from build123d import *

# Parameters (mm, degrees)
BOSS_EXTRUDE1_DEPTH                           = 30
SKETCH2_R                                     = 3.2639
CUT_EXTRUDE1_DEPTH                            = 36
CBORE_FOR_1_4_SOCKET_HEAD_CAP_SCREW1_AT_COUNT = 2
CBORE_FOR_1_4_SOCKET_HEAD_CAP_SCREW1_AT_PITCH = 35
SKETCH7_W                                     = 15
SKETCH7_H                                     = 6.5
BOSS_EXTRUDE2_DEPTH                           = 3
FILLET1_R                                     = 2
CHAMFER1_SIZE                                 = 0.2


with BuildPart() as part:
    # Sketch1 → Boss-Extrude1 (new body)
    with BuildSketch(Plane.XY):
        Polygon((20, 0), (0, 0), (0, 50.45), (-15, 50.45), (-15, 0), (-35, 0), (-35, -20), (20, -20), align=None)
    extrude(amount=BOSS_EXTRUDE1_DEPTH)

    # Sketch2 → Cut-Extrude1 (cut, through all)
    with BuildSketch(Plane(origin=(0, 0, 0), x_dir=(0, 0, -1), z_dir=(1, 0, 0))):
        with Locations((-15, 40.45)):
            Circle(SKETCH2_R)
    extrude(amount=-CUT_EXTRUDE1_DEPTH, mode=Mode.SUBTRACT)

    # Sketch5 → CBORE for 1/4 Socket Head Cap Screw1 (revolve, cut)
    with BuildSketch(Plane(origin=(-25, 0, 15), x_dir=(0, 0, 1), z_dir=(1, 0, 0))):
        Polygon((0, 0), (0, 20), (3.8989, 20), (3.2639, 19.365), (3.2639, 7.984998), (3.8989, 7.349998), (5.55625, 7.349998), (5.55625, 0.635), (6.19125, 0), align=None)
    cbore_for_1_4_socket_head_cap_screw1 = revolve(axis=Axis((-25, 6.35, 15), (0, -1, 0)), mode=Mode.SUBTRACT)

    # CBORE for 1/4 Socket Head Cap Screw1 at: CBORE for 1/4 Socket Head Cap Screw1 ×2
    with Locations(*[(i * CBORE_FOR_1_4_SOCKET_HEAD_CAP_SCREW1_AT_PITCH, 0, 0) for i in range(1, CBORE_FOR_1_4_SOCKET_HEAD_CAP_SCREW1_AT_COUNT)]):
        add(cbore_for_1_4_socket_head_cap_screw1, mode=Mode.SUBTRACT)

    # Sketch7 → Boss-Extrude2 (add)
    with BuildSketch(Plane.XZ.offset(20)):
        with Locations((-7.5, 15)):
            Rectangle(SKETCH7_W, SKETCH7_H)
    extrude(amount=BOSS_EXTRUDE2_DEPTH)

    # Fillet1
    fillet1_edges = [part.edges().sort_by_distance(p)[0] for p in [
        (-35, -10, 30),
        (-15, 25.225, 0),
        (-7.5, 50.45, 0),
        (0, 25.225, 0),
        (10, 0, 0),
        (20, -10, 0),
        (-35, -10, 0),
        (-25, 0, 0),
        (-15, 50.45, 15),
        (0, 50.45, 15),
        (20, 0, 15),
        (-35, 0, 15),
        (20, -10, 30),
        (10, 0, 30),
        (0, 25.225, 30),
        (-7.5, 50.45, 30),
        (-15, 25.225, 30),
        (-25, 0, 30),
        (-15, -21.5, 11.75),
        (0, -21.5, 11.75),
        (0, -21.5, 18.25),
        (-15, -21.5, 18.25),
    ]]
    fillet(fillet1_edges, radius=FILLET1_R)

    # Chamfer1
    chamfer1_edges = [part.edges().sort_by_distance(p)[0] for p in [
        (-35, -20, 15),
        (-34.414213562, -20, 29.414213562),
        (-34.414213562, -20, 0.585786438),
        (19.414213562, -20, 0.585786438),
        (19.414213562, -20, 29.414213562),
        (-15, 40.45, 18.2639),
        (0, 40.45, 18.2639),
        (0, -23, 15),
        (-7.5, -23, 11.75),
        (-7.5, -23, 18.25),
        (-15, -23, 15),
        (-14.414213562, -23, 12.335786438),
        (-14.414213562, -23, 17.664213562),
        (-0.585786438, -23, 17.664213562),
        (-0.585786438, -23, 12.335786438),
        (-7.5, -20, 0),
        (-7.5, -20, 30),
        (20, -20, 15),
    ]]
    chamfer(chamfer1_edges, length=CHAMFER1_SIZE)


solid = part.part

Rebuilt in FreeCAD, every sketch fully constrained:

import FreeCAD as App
import Part
import Sketcher
Q = App.Units.Quantity


def edges_at(feature, points):
    """Names of the edges that pass closest to the given points."""
    edges = feature.Shape.Edges
    near = lambda p: min(range(len(edges)), key=lambda i: edges[i].distToShape(Part.Vertex(*p))[0])
    return sorted({f"Edge{near(p) + 1}" for p in points})

doc = App.newDocument("Part")
body = doc.addObject("PartDesign::Body", "Body")

sketch1 = body.newObject("Sketcher::SketchObject", "Sketch")
sketch1.AttachmentSupport = (doc.getObject("XY_Plane"), [""])
sketch1.MapMode = "FlatFace"
sketch1.addGeometry(Part.LineSegment(App.Vector(20, 0, 0), App.Vector(0, 0, 0)), False)
sketch1.addGeometry(Part.LineSegment(App.Vector(0, 0, 0), App.Vector(0, 50, 0)), False)
sketch1.addGeometry(Part.LineSegment(App.Vector(0, 50, 0), App.Vector(-15, 50, 0)), False)
sketch1.addGeometry(Part.LineSegment(App.Vector(-15, 50, 0), App.Vector(-15, 0, 0)), False)
sketch1.addGeometry(Part.LineSegment(App.Vector(-15, 0, 0), App.Vector(-35, 0, 0)), False)
sketch1.addGeometry(Part.LineSegment(App.Vector(-35, 0, 0), App.Vector(-35, -20, 0)), False)
sketch1.addGeometry(Part.LineSegment(App.Vector(-35, -20, 0), App.Vector(20, -20, 0)), False)
sketch1.addGeometry(Part.LineSegment(App.Vector(20, -20, 0), App.Vector(20, 0, 0)), False)
sketch1.addConstraint(Sketcher.Constraint("Coincident", 0, 2, 1, 1))
sketch1.addConstraint(Sketcher.Constraint("Coincident", 1, 2, 2, 1))
sketch1.addConstraint(Sketcher.Constraint("Coincident", 2, 2, 3, 1))
sketch1.addConstraint(Sketcher.Constraint("Coincident", 3, 2, 4, 1))
sketch1.addConstraint(Sketcher.Constraint("Coincident", 4, 2, 5, 1))
sketch1.addConstraint(Sketcher.Constraint("Coincident", 5, 2, 6, 1))
sketch1.addConstraint(Sketcher.Constraint("Coincident", 6, 2, 7, 1))
sketch1.addConstraint(Sketcher.Constraint("Coincident", 7, 2, 0, 1))
sketch1.addConstraint(Sketcher.Constraint("Horizontal", 0))
sketch1.addConstraint(Sketcher.Constraint("Vertical", 1))
sketch1.addConstraint(Sketcher.Constraint("Horizontal", 2))
sketch1.addConstraint(Sketcher.Constraint("Vertical", 3))
sketch1.addConstraint(Sketcher.Constraint("Horizontal", 4))
sketch1.addConstraint(Sketcher.Constraint("Vertical", 5))
sketch1.addConstraint(Sketcher.Constraint("Horizontal", 6))
sketch1.addConstraint(Sketcher.Constraint("Vertical", 7))
sketch1.addConstraint(Sketcher.Constraint("Coincident", 0, 2, -1, 1))
sketch1.addConstraint(Sketcher.Constraint("PointOnObject", 3, 2, -1))
sketch1.addConstraint(Sketcher.Constraint("Equal", 0, 4))
sketch1.addConstraint(Sketcher.Constraint("Equal", 4, 5))
sketch1.addConstraint(Sketcher.Constraint("DistanceX", 0, 2, 0, 1, Q("20 mm")))
sketch1.addConstraint(Sketcher.Constraint("DistanceX", 2, 2, 2, 1, Q("15 mm")))
sketch1.addConstraint(Sketcher.Constraint("DistanceY", 1, 1, 1, 2, Q("50.45 mm")))
pad1 = body.newObject("PartDesign::Pad", "Pad")
pad1.Profile = sketch1
pad1.Length = 30

sketch2 = body.newObject("Sketcher::SketchObject", "Sketch001")
sketch2.AttachmentSupport = (doc.getObject("YZ_Plane"), [""])
sketch2.MapMode = "FlatFace"
sketch2.addGeometry(Part.Circle(App.Vector(40.5, 15, 0), App.Vector(0, 0, 1), 3.3), False)
sketch2.addConstraint(Sketcher.Constraint("DistanceY", -1, 1, 0, 3, Q("15 mm")))
sketch2.addConstraint(Sketcher.Constraint("Diameter", 0, Q("6.5278 mm")))
sketch2.addConstraint(Sketcher.Constraint("DistanceX", -1, 1, 0, 3, Q("40.45 mm")))
pocket1 = body.newObject("PartDesign::Pocket", "Pocket")
pocket1.Profile = sketch2
pocket1.Type = "ThroughAll"

sketch3 = body.newObject("Sketcher::SketchObject", "Sketch002")
sketch3.AttachmentSupport = (doc.getObject("YZ_Plane"), [""])
sketch3.MapMode = "FlatFace"
sketch3.AttachmentOffset = App.Placement(App.Vector(0, 0, -25), App.Rotation())
sketch3.addGeometry(Part.LineSegment(App.Vector(-20, 15, 0), App.Vector(0, 15, 0)), False)
sketch3.addGeometry(Part.LineSegment(App.Vector(0, 15, 0), App.Vector(0, 21.2, 0)), False)
sketch3.addGeometry(Part.LineSegment(App.Vector(0, 21.2, 0), App.Vector(-0.6, 20.6, 0)), False)
sketch3.addGeometry(Part.LineSegment(App.Vector(-0.6, 20.6, 0), App.Vector(-7.3, 20.6, 0)), False)
sketch3.addGeometry(Part.LineSegment(App.Vector(-7.3, 20.6, 0), App.Vector(-7.3, 18.9, 0)), False)
sketch3.addGeometry(Part.LineSegment(App.Vector(-7.3, 18.9, 0), App.Vector(-8, 18.3, 0)), False)
sketch3.addGeometry(Part.LineSegment(App.Vector(-8, 18.3, 0), App.Vector(-19.4, 18.3, 0)), False)
sketch3.addGeometry(Part.LineSegment(App.Vector(-19.4, 18.3, 0), App.Vector(-20, 18.9, 0)), False)
sketch3.addGeometry(Part.LineSegment(App.Vector(-20, 18.9, 0), App.Vector(-20, 15, 0)), False)
sketch3.addGeometry(Part.LineSegment(App.Vector(0, 15, 0), App.Vector(-20, 15, 0)), True)
sketch3.addConstraint(Sketcher.Constraint("Coincident", 0, 2, 1, 1))
sketch3.addConstraint(Sketcher.Constraint("Coincident", 1, 2, 2, 1))
sketch3.addConstraint(Sketcher.Constraint("Coincident", 2, 2, 3, 1))
sketch3.addConstraint(Sketcher.Constraint("Coincident", 3, 2, 4, 1))
sketch3.addConstraint(Sketcher.Constraint("Coincident", 4, 2, 5, 1))
sketch3.addConstraint(Sketcher.Constraint("Coincident", 5, 2, 6, 1))
sketch3.addConstraint(Sketcher.Constraint("Coincident", 6, 2, 7, 1))
sketch3.addConstraint(Sketcher.Constraint("Coincident", 7, 2, 8, 1))
sketch3.addConstraint(Sketcher.Constraint("Coincident", 8, 2, 0, 1))
sketch3.addConstraint(Sketcher.Constraint("Horizontal", 0))
sketch3.addConstraint(Sketcher.Constraint("Vertical", 1))
sketch3.addConstraint(Sketcher.Constraint("Horizontal", 3))
sketch3.addConstraint(Sketcher.Constraint("Vertical", 4))
sketch3.addConstraint(Sketcher.Constraint("Horizontal", 6))
sketch3.addConstraint(Sketcher.Constraint("Vertical", 8))
sketch3.addConstraint(Sketcher.Constraint("Horizontal", 9))
sketch3.addConstraint(Sketcher.Constraint("Coincident", 9, 1, 0, 2))
sketch3.addConstraint(Sketcher.Constraint("PointOnObject", 0, 2, -2))
sketch3.addConstraint(Sketcher.Constraint("Parallel", 2, 5))
sketch3.addConstraint(Sketcher.Constraint("Perpendicular", 5, 7))
sketch3.addConstraint(Sketcher.Constraint("Horizontal", 4, 2, 7, 2))
sketch3.addConstraint(Sketcher.Constraint("Vertical", 7, 2, 9, 2))
sketch3.addConstraint(Sketcher.Constraint("Equal", 2, 5))
sketch3.addConstraint(Sketcher.Constraint("Equal", 5, 7))
sketch3.addConstraint(Sketcher.Constraint("DistanceX", 0, 1, 0, 2, Q("20 mm")))
sketch3.addConstraint(Sketcher.Constraint("DistanceY", -1, 1, 0, 2, Q("15 mm")))
sketch3.addConstraint(Sketcher.Constraint("DistanceX", 6, 2, 6, 1, Q("11.380002 mm")))
sketch3.addConstraint(Sketcher.Constraint("DistanceX", 3, 2, 3, 1, Q("6.714998 mm")))
sketch3.addConstraint(Sketcher.Constraint("DistanceY", 8, 2, 8, 1, Q("3.8989 mm")))
sketch3.addConstraint(Sketcher.Constraint("DistanceY", 1, 1, 1, 2, Q("6.19125 mm")))
groove = body.newObject("PartDesign::Groove", "Groove")
groove.Profile = sketch3
groove.ReferenceAxis = (sketch3, ["Axis0"])
groove.Angle = 360
doc.recompute()

linearpattern = body.newObject("PartDesign::LinearPattern", "LinearPattern")
linearpattern.Originals = [groove]
linearpattern.Direction = (doc.getObject("X_Axis"), [""])
linearpattern.Mode = "offset"
linearpattern.Offset = 35
linearpattern.Occurrences = 2
body.Tip = linearpattern

sketch4 = body.newObject("Sketcher::SketchObject", "Sketch003")
sketch4.AttachmentSupport = (doc.getObject("XZ_Plane"), [""])
sketch4.MapMode = "FlatFace"
sketch4.AttachmentOffset = App.Placement(App.Vector(0, 0, 20), App.Rotation())
sketch4.addGeometry(Part.LineSegment(App.Vector(-15, 18, 0), App.Vector(-15, 12, 0)), False)
sketch4.addGeometry(Part.LineSegment(App.Vector(-15, 12, 0), App.Vector(0, 12, 0)), False)
sketch4.addGeometry(Part.LineSegment(App.Vector(0, 12, 0), App.Vector(0, 18, 0)), False)
sketch4.addGeometry(Part.LineSegment(App.Vector(0, 18, 0), App.Vector(-15, 18, 0)), False)
sketch4.addConstraint(Sketcher.Constraint("Coincident", 0, 2, 1, 1))
sketch4.addConstraint(Sketcher.Constraint("Coincident", 1, 2, 2, 1))
sketch4.addConstraint(Sketcher.Constraint("Coincident", 2, 2, 3, 1))
sketch4.addConstraint(Sketcher.Constraint("Coincident", 3, 2, 0, 1))
sketch4.addConstraint(Sketcher.Constraint("Vertical", 0))
sketch4.addConstraint(Sketcher.Constraint("Horizontal", 1))
sketch4.addConstraint(Sketcher.Constraint("Vertical", 2))
sketch4.addConstraint(Sketcher.Constraint("Horizontal", 3))
sketch4.addConstraint(Sketcher.Constraint("PointOnObject", 1, 2, -2))
sketch4.addConstraint(Sketcher.Constraint("DistanceX", 1, 1, 1, 2, Q("15 mm")))
sketch4.addConstraint(Sketcher.Constraint("DistanceY", 0, 2, 0, 1, Q("6.5 mm")))
sketch4.addConstraint(Sketcher.Constraint("DistanceY", -1, 1, 0, 2, Q("11.75 mm")))
pad2 = body.newObject("PartDesign::Pad", "Pad001")
pad2.Profile = sketch4
pad2.Length = 3
doc.recompute()

fillet = body.newObject("PartDesign::Fillet", "Fillet")
fillet.Base = (pad2, edges_at(pad2, [
    (-35, -10, 30),
    (-15, 25.225, 0),
    (-7.5, 50.45, 0),
    (0, 25.225, 0),
    (10, 0, 0),
    (20, -10, 0),
    (-35, -10, 0),
    (-25, 0, 0),
    (-15, 50.45, 15),
    (0, 50.45, 15),
    (20, 0, 15),
    (-35, 0, 15),
    (20, -10, 30),
    (10, 0, 30),
    (0, 25.225, 30),
    (-7.5, 50.45, 30),
    (-15, 25.225, 30),
    (-25, 0, 30),
    (-15, -21.5, 11.75),
    (0, -21.5, 11.75),
    (0, -21.5, 18.25),
    (-15, -21.5, 18.25),
]))
fillet.Radius = 2
doc.recompute()

chamfer = body.newObject("PartDesign::Chamfer", "Chamfer")
chamfer.Base = (fillet, edges_at(fillet, [
    (-35, -20, 15),
    (-34.414, -20, 29.414),
    (-34.414, -20, 0.586),
    (19.414, -20, 0.586),
    (19.414, -20, 29.414),
    (-15, 40.45, 18.264),
    (0, 40.45, 18.264),
    (0, -23, 15),
    (-7.5, -23, 11.75),
    (-7.5, -23, 18.25),
    (-15, -23, 15),
    (-14.414, -23, 12.336),
    (-14.414, -23, 17.664),
    (-0.586, -23, 17.664),
    (-0.586, -23, 12.336),
    (-7.5, -20, 0),
    (-7.5, -20, 30),
    (20, -20, 15),
]))
chamfer.Size = 0.2

doc.recompute()
